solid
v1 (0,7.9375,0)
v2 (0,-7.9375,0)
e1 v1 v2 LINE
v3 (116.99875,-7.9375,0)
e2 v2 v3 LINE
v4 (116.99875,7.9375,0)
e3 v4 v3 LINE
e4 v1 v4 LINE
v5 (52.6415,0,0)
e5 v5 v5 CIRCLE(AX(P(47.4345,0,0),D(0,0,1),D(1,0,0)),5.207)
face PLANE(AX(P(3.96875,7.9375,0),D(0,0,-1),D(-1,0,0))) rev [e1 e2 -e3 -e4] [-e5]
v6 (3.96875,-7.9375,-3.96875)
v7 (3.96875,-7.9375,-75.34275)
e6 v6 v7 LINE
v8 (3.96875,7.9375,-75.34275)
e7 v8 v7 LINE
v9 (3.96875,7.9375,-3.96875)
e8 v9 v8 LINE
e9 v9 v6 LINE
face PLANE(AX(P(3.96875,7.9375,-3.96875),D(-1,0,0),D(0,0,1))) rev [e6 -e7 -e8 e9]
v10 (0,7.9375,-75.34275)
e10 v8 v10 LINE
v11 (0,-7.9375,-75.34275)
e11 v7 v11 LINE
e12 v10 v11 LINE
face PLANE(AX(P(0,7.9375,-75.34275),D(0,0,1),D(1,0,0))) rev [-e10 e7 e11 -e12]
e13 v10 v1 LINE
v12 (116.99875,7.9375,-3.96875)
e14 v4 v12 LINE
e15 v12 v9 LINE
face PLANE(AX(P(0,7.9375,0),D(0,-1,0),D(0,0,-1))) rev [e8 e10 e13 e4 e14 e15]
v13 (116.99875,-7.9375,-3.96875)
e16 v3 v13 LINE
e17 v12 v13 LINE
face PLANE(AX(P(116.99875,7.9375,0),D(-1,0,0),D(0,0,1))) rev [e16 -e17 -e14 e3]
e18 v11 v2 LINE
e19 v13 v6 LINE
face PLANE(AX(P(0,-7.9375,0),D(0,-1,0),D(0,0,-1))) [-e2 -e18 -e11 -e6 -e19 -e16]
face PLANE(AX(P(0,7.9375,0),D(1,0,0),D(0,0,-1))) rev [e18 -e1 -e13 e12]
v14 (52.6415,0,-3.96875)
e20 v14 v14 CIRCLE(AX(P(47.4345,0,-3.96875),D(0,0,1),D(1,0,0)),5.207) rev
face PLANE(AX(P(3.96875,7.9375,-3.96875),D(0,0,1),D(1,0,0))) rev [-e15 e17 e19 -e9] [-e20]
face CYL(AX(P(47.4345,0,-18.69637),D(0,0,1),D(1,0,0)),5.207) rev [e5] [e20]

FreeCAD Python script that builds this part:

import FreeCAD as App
import Part
import Sketcher
from FreeCAD import Vector
Q = App.Units.Quantity

doc = App.newDocument("Part")
body = doc.addObject("PartDesign::Body", "Body")

# Sketch on XZ plane
sketch1 = doc.addObject("Sketcher::SketchObject", "Sketch")
body.addObject(sketch1)
sketch1.AttachmentSupport = (doc.XZ_Plane, [""])
sketch1.MapMode = "FlatFace"
sketch1.addGeometry(Part.LineSegment(Vector(0, 0, 0), Vector(116.99875, 0, 0)), False)
sketch1.addGeometry(Part.LineSegment(Vector(116.99875, 0, 0), Vector(116.99875, -3.96875, 0)), False)
sketch1.addGeometry(Part.LineSegment(Vector(116.99875, -3.96875, 0), Vector(3.96875, -3.96875, 0)), False)
sketch1.addGeometry(Part.LineSegment(Vector(3.96875, -3.96875, 0), Vector(3.96875, -75.34275, 0)), False)
sketch1.addGeometry(Part.LineSegment(Vector(3.96875, -75.34275, 0), Vector(0, -75.34275, 0)), False)
sketch1.addGeometry(Part.LineSegment(Vector(0, -75.34275, 0), Vector(0, 0, 0)), False)
sketch1.addConstraint(Sketcher.Constraint("Coincident", 0, 2, 1, 1))
sketch1.addConstraint(Sketcher.Constraint("Coincident", 1, 2, 2, 1))
sketch1.addConstraint(Sketcher.Constraint("Coincident", 2, 2, 3, 1))
sketch1.addConstraint(Sketcher.Constraint("Coincident", 3, 2, 4, 1))
sketch1.addConstraint(Sketcher.Constraint("Coincident", 4, 2, 5, 1))
sketch1.addConstraint(Sketcher.Constraint("Coincident", 5, 2, 0, 1))
sketch1.addConstraint(Sketcher.Constraint("Horizontal", 0))
sketch1.addConstraint(Sketcher.Constraint("Vertical", 1))
sketch1.addConstraint(Sketcher.Constraint("Horizontal", 2))
sketch1.addConstraint(Sketcher.Constraint("Vertical", 3))
sketch1.addConstraint(Sketcher.Constraint("Horizontal", 4))
sketch1.addConstraint(Sketcher.Constraint("Vertical", 5))
sketch1.addConstraint(Sketcher.Constraint("Coincident", 5, 2, -1, 1))
sketch1.addConstraint(Sketcher.Constraint("Equal", 4, 1))
sketch1.addConstraint(Sketcher.Constraint("DistanceX", 2, 2, 2, 1, Q("4.45 in")))
sketch1.addConstraint(Sketcher.Constraint("DistanceY", 3, 2, 3, 1, Q("2.81 in")))
sketch1.addConstraint(Sketcher.Constraint("DistanceX", 4, 2, 4, 1, Q("0.15625 in")))
pad1 = doc.addObject("PartDesign::Pad", "Pad")
body.addObject(pad1)
pad1.Profile = sketch1
pad1.Length = Q("0.625 in")
pad1.Midplane = True

# Sketch on XY plane
sketch2 = doc.addObject("Sketcher::SketchObject", "Sketch001")
body.addObject(sketch2)
sketch2.AttachmentSupport = (doc.XY_Plane, [""])
sketch2.MapMode = "FlatFace"
sketch2.addGeometry(Part.Circle(Vector(47.4345, 0, 0), Vector(0, 0, 1), 5.207), False)
sketch2.addConstraint(Sketcher.Constraint("PointOnObject", 0, 3, -1))
sketch2.addConstraint(Sketcher.Constraint("Diameter", 0, Q("0.41 in")))
sketch2.addConstraint(Sketcher.Constraint("DistanceX", -1, 1, 0, 3, Q("1.8675 in")))
pocket1 = doc.addObject("PartDesign::Pocket", "Pocket")
body.addObject(pocket1)
pocket1.Profile = sketch2
pocket1.Length = Q("0.15625 in")

doc.recompute()
